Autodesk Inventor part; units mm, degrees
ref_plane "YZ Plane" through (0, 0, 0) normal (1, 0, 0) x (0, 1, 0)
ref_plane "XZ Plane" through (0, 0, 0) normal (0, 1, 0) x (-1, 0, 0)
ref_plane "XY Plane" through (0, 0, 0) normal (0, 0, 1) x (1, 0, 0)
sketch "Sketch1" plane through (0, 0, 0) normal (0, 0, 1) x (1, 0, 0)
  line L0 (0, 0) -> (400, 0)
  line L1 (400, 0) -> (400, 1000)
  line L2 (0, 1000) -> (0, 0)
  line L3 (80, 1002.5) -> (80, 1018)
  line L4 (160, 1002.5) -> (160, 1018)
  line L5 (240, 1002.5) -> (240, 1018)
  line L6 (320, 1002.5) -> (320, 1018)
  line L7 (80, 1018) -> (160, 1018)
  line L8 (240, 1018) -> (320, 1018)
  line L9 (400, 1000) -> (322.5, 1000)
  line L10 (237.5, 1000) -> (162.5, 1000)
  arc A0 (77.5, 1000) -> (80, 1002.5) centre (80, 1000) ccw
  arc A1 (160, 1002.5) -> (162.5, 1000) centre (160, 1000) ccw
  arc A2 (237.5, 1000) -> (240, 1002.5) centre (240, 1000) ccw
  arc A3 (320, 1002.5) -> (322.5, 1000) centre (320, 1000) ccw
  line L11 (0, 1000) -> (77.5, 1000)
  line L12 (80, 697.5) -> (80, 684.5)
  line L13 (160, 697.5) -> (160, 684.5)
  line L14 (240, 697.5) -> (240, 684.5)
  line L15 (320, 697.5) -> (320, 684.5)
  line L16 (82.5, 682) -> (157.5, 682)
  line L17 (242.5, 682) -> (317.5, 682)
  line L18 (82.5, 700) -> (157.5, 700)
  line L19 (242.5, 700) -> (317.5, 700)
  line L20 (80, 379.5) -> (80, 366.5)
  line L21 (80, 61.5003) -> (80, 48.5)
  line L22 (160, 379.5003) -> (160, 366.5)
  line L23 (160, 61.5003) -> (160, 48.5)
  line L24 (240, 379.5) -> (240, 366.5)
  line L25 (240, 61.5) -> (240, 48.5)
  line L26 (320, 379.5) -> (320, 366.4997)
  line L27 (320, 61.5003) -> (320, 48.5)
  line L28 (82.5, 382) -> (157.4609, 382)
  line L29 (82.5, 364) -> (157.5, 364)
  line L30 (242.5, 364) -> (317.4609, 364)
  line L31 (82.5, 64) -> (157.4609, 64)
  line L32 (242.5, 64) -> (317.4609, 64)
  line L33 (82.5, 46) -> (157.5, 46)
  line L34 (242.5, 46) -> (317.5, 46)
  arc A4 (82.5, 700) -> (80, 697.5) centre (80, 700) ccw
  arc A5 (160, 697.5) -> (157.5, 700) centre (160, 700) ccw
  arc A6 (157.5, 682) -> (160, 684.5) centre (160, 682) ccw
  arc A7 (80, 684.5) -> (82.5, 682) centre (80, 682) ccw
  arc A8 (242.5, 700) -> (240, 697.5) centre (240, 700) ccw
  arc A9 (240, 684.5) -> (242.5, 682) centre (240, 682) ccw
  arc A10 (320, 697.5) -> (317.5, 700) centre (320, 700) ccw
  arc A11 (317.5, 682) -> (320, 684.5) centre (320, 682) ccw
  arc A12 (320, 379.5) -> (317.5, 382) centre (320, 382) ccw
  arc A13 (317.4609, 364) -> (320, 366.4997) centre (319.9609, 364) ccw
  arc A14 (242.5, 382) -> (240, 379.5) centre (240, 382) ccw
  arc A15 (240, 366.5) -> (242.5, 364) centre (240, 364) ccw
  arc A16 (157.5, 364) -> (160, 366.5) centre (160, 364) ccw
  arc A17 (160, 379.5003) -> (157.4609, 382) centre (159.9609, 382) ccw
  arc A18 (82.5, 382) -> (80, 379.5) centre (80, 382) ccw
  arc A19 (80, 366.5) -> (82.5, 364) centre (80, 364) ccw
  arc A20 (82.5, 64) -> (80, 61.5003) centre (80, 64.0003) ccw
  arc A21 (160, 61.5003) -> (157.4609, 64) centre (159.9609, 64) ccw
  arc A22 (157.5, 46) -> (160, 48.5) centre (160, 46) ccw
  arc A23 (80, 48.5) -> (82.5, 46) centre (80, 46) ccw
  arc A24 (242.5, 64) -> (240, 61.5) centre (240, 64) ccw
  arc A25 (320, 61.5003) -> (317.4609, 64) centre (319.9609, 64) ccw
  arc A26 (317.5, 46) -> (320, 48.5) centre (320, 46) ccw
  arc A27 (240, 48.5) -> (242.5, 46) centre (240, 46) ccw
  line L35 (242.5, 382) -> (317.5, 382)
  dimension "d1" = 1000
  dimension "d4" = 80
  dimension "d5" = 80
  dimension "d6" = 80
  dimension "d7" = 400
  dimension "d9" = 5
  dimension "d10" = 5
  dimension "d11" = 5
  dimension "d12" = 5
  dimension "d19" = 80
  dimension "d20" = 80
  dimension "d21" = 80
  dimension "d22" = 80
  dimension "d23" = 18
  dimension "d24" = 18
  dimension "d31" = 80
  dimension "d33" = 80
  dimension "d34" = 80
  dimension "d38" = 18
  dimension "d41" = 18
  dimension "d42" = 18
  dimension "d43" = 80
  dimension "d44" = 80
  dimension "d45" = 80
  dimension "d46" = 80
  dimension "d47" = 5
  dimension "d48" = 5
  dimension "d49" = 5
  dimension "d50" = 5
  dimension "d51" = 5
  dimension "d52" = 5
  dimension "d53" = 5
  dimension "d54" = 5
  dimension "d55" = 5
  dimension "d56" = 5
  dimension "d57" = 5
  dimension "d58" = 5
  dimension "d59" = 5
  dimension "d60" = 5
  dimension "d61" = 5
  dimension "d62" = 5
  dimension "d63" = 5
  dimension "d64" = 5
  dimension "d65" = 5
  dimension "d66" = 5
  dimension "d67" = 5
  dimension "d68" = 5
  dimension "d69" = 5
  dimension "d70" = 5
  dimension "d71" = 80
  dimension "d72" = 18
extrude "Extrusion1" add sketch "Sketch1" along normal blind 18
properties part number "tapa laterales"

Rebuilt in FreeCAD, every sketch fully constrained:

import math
import FreeCAD as App
import Part
import Sketcher

doc = App.newDocument("Part")
body = doc.addObject("PartDesign::Body", "Body")

sketch1 = body.newObject("Sketcher::SketchObject", "Sketch")
sketch1.AttachmentSupport = (doc.getObject("XY_Plane"), [""])
sketch1.MapMode = "FlatFace"
sketch1.addGeometry([
    Part.LineSegment(App.Vector(0, 1000, 0), App.Vector(0, 0, 0)),
    Part.LineSegment(App.Vector(0, 0, 0), App.Vector(400, 0, 0)),
    Part.LineSegment(App.Vector(400, 0, 0), App.Vector(400, 1000, 0)),
    Part.LineSegment(App.Vector(400, 1000, 0), App.Vector(322.5, 1000, 0)),
    Part.ArcOfCircle(Part.Circle(App.Vector(320, 1000, 0), App.Vector(0, 0, 1), 2.5), math.radians(90), math.radians(360)),
    Part.LineSegment(App.Vector(320, 1002.5, 0), App.Vector(320, 1018, 0)),
    Part.LineSegment(App.Vector(320, 1018, 0), App.Vector(240, 1018, 0)),
    Part.LineSegment(App.Vector(240, 1018, 0), App.Vector(240, 1002.5, 0)),
    Part.ArcOfCircle(Part.Circle(App.Vector(240, 1000, 0), App.Vector(0, 0, 1), 2.5), math.radians(180), math.radians(450)),
    Part.LineSegment(App.Vector(237.5, 1000, 0), App.Vector(162.5, 1000, 0)),
    Part.ArcOfCircle(Part.Circle(App.Vector(160, 1000, 0), App.Vector(0, 0, 1), 2.5), math.radians(90), math.radians(360)),
    Part.LineSegment(App.Vector(160, 1002.5, 0), App.Vector(160, 1018, 0)),
    Part.LineSegment(App.Vector(160, 1018, 0), App.Vector(80, 1018, 0)),
    Part.LineSegment(App.Vector(80, 1018, 0), App.Vector(80, 1002.5, 0)),
    Part.ArcOfCircle(Part.Circle(App.Vector(80, 1000, 0), App.Vector(0, 0, 1), 2.5), math.radians(180), math.radians(450)),
    Part.LineSegment(App.Vector(77.5, 1000, 0), App.Vector(0, 1000, 0)),
    Part.LineSegment(App.Vector(80, 48.5, 0), App.Vector(80, 61.5, 0)),
    Part.ArcOfCircle(Part.Circle(App.Vector(80, 64, 0), App.Vector(0, 0, 1), 2.5), math.radians(0), math.radians(270)),
    Part.LineSegment(App.Vector(82.5, 64, 0), App.Vector(157.5, 64, 0)),
    Part.ArcOfCircle(Part.Circle(App.Vector(160, 64, 0), App.Vector(0, 0, 1), 2.5), math.radians(-89), math.radians(180)),
    Part.LineSegment(App.Vector(160, 61.5, 0), App.Vector(160, 48.5, 0)),
    Part.ArcOfCircle(Part.Circle(App.Vector(160, 46, 0), App.Vector(0, 0, 1), 2.5), math.radians(180), math.radians(450)),
    Part.LineSegment(App.Vector(157.5, 46, 0), App.Vector(82.5, 46, 0)),
    Part.ArcOfCircle(Part.Circle(App.Vector(80, 46, 0), App.Vector(0, 0, 1), 2.5), math.radians(90), math.radians(360)),
    Part.LineSegment(App.Vector(80, 366.5, 0), App.Vector(80, 379.5, 0)),
    Part.ArcOfCircle(Part.Circle(App.Vector(80, 382, 0), App.Vector(0, 0, 1), 2.5), math.radians(0), math.radians(270)),
    Part.LineSegment(App.Vector(82.5, 382, 0), App.Vector(157.5, 382, 0)),
    Part.ArcOfCircle(Part.Circle(App.Vector(160, 382, 0), App.Vector(0, 0, 1), 2.5), math.radians(-89), math.radians(180)),
    Part.LineSegment(App.Vector(160, 379.5, 0), App.Vector(160, 366.5, 0)),
    Part.ArcOfCircle(Part.Circle(App.Vector(160, 364, 0), App.Vector(0, 0, 1), 2.5), math.radians(180), math.radians(450)),
    Part.LineSegment(App.Vector(157.5, 364, 0), App.Vector(82.5, 364, 0)),
    Part.ArcOfCircle(Part.Circle(App.Vector(80, 364, 0), App.Vector(0, 0, 1), 2.5), math.radians(90), math.radians(360)),
    Part.LineSegment(App.Vector(240, 48.5, 0), App.Vector(240, 61.5, 0)),
    Part.ArcOfCircle(Part.Circle(App.Vector(240, 64, 0), App.Vector(0, 0, 1), 2.5), math.radians(0), math.radians(270)),
    Part.LineSegment(App.Vector(242.5, 64, 0), App.Vector(317.5, 64, 0)),
    Part.ArcOfCircle(Part.Circle(App.Vector(320, 64, 0), App.Vector(0, 0, 1), 2.5), math.radians(-89), math.radians(180)),
    Part.LineSegment(App.Vector(320, 61.5, 0), App.Vector(320, 48.5, 0)),
    Part.ArcOfCircle(Part.Circle(App.Vector(320, 46, 0), App.Vector(0, 0, 1), 2.5), math.radians(180), math.radians(450)),
    Part.LineSegment(App.Vector(317.5, 46, 0), App.Vector(242.5, 46, 0)),
    Part.ArcOfCircle(Part.Circle(App.Vector(240, 46, 0), App.Vector(0, 0, 1), 2.5), math.radians(90), math.radians(360)),
    Part.LineSegment(App.Vector(240, 366.5, 0), App.Vector(240, 379.5, 0)),
    Part.ArcOfCircle(Part.Circle(App.Vector(240, 382, 0), App.Vector(0, 0, 1), 2.5), math.radians(0), math.radians(270)),
    Part.LineSegment(App.Vector(242.5, 382, 0), App.Vector(317.5, 382, 0)),
    Part.ArcOfCircle(Part.Circle(App.Vector(320, 382, 0), App.Vector(0, 0, 1), 2.5), math.radians(-90), math.radians(180)),
    Part.LineSegment(App.Vector(320, 379.5, 0), App.Vector(320, 366.5, 0)),
    Part.ArcOfCircle(Part.Circle(App.Vector(320, 364, 0), App.Vector(0, 0, 1), 2.5), math.radians(180), math.radians(449)),
    Part.LineSegment(App.Vector(317.5, 364, 0), App.Vector(242.5, 364, 0)),
    Part.ArcOfCircle(Part.Circle(App.Vector(240, 364, 0), App.Vector(0, 0, 1), 2.5), math.radians(90), math.radians(360)),
    Part.LineSegment(App.Vector(80, 684.5, 0), App.Vector(80, 697.5, 0)),
    Part.ArcOfCircle(Part.Circle(App.Vector(80, 700, 0), App.Vector(0, 0, 1), 2.5), math.radians(0), math.radians(270)),
    Part.LineSegment(App.Vector(82.5, 700, 0), App.Vector(157.5, 700, 0)),
    Part.ArcOfCircle(Part.Circle(App.Vector(160, 700, 0), App.Vector(0, 0, 1), 2.5), math.radians(-90), math.radians(180)),
    Part.LineSegment(App.Vector(160, 697.5, 0), App.Vector(160, 684.5, 0)),
    Part.ArcOfCircle(Part.Circle(App.Vector(160, 682, 0), App.Vector(0, 0, 1), 2.5), math.radians(180), math.radians(450)),
    Part.LineSegment(App.Vector(157.5, 682, 0), App.Vector(82.5, 682, 0)),
    Part.ArcOfCircle(Part.Circle(App.Vector(80, 682, 0), App.Vector(0, 0, 1), 2.5), math.radians(90), math.radians(360)),
    Part.LineSegment(App.Vector(240, 684.5, 0), App.Vector(240, 697.5, 0)),
    Part.ArcOfCircle(Part.Circle(App.Vector(240, 700, 0), App.Vector(0, 0, 1), 2.5), math.radians(0), math.radians(270)),
    Part.LineSegment(App.Vector(242.5, 700, 0), App.Vector(317.5, 700, 0)),
    Part.ArcOfCircle(Part.Circle(App.Vector(320, 700, 0), App.Vector(0, 0, 1), 2.5), math.radians(-90), math.radians(180)),
    Part.LineSegment(App.Vector(320, 697.5, 0), App.Vector(320, 684.5, 0)),
    Part.ArcOfCircle(Part.Circle(App.Vector(320, 682, 0), App.Vector(0, 0, 1), 2.5), math.radians(180), math.radians(450)),
    Part.LineSegment(App.Vector(317.5, 682, 0), App.Vector(242.5, 682, 0)),
    Part.ArcOfCircle(Part.Circle(App.Vector(240, 682, 0), App.Vector(0, 0, 1), 2.5), math.radians(90), math.radians(360)),
], False)
sketch1.addConstraint([
    Sketcher.Constraint("Coincident", 0, 2, 1, 1),
    Sketcher.Constraint("Coincident", 1, 2, 2, 1),
    Sketcher.Constraint("Coincident", 2, 2, 3, 1),
    Sketcher.Constraint("Coincident", 3, 2, 4, 2),
    Sketcher.Constraint("Coincident", 4, 1, 5, 1),
    Sketcher.Constraint("Coincident", 5, 2, 6, 1),
    Sketcher.Constraint("Coincident", 6, 2, 7, 1),
    Sketcher.Constraint("Coincident", 7, 2, 8, 2),
    Sketcher.Constraint("Coincident", 8, 1, 9, 1),
    Sketcher.Constraint("Coincident", 9, 2, 10, 2),
    Sketcher.Constraint("Coincident", 10, 1, 11, 1),
    Sketcher.Constraint("Coincident", 11, 2, 12, 1),
    Sketcher.Constraint("Coincident", 12, 2, 13, 1),
    Sketcher.Constraint("Coincident", 13, 2, 14, 2),
    Sketcher.Constraint("Coincident", 14, 1, 15, 1),
    Sketcher.Constraint("Coincident", 15, 2, 0, 1),
    Sketcher.Constraint("Coincident", 16, 2, 17, 2),
    Sketcher.Constraint("Coincident", 17, 1, 18, 1),
    Sketcher.Constraint("Coincident", 18, 2, 19, 2),
    Sketcher.Constraint("Coincident", 19, 1, 20, 1),
    Sketcher.Constraint("Coincident", 20, 2, 21, 2),
    Sketcher.Constraint("Coincident", 21, 1, 22, 1),
    Sketcher.Constraint("Coincident", 22, 2, 23, 2),
    Sketcher.Constraint("Coincident", 23, 1, 16, 1),
    Sketcher.Constraint("Coincident", 24, 2, 25, 2),
    Sketcher.Constraint("Coincident", 25, 1, 26, 1),
    Sketcher.Constraint("Coincident", 26, 2, 27, 2),
    Sketcher.Constraint("Coincident", 27, 1, 28, 1),
    Sketcher.Constraint("Coincident", 28, 2, 29, 2),
    Sketcher.Constraint("Coincident", 29, 1, 30, 1),
    Sketcher.Constraint("Coincident", 30, 2, 31, 2),
    Sketcher.Constraint("Coincident", 31, 1, 24, 1),
    Sketcher.Constraint("Coincident", 32, 2, 33, 2),
    Sketcher.Constraint("Coincident", 33, 1, 34, 1),
    Sketcher.Constraint("Coincident", 34, 2, 35, 2),
    Sketcher.Constraint("Coincident", 35, 1, 36, 1),
    Sketcher.Constraint("Coincident", 36, 2, 37, 2),
    Sketcher.Constraint("Coincident", 37, 1, 38, 1),
    Sketcher.Constraint("Coincident", 38, 2, 39, 2),
    Sketcher.Constraint("Coincident", 39, 1, 32, 1),
    Sketcher.Constraint("Coincident", 40, 2, 41, 2),
    Sketcher.Constraint("Coincident", 41, 1, 42, 1),
    Sketcher.Constraint("Coincident", 42, 2, 43, 2),
    Sketcher.Constraint("Coincident", 43, 1, 44, 1),
    Sketcher.Constraint("Coincident", 44, 2, 45, 2),
    Sketcher.Constraint("Coincident", 45, 1, 46, 1),
    Sketcher.Constraint("Coincident", 46, 2, 47, 2),
    Sketcher.Constraint("Coincident", 47, 1, 40, 1),
    Sketcher.Constraint("Coincident", 48, 2, 49, 2),
    Sketcher.Constraint("Coincident", 49, 1, 50, 1),
    Sketcher.Constraint("Coincident", 50, 2, 51, 2),
    Sketcher.Constraint("Coincident", 51, 1, 52, 1),
    Sketcher.Constraint("Coincident", 52, 2, 53, 2),
    Sketcher.Constraint("Coincident", 53, 1, 54, 1),
    Sketcher.Constraint("Coincident", 54, 2, 55, 2),
    Sketcher.Constraint("Coincident", 55, 1, 48, 1),
    Sketcher.Constraint("Coincident", 56, 2, 57, 2),
    Sketcher.Constraint("Coincident", 57, 1, 58, 1),
    Sketcher.Constraint("Coincident", 58, 2, 59, 2),
    Sketcher.Constraint("Coincident", 59, 1, 60, 1),
    Sketcher.Constraint("Coincident", 60, 2, 61, 2),
    Sketcher.Constraint("Coincident", 61, 1, 62, 1),
    Sketcher.Constraint("Coincident", 62, 2, 63, 2),
    Sketcher.Constraint("Coincident", 63, 1, 56, 1),
    Sketcher.Constraint("Vertical", 0),
    Sketcher.Constraint("Horizontal", 1),
    Sketcher.Constraint("Vertical", 2),
    Sketcher.Constraint("Horizontal", 3),
    Sketcher.Constraint("Vertical", 5),
    Sketcher.Constraint("Horizontal", 6),
    Sketcher.Constraint("Vertical", 7),
    Sketcher.Constraint("Horizontal", 9),
    Sketcher.Constraint("Vertical", 11),
    Sketcher.Constraint("Horizontal", 12),
    Sketcher.Constraint("Vertical", 13),
    Sketcher.Constraint("Horizontal", 15),
    Sketcher.Constraint("Vertical", 16),
    Sketcher.Constraint("Horizontal", 18),
    Sketcher.Constraint("Vertical", 20),
    Sketcher.Constraint("Horizontal", 22),
    Sketcher.Constraint("Vertical", 24),
    Sketcher.Constraint("Horizontal", 26),
    Sketcher.Constraint("Vertical", 28),
    Sketcher.Constraint("Horizontal", 30),
    Sketcher.Constraint("Vertical", 32),
    Sketcher.Constraint("Horizontal", 34),
    Sketcher.Constraint("Vertical", 36),
    Sketcher.Constraint("Horizontal", 38),
    Sketcher.Constraint("Vertical", 40),
    Sketcher.Constraint("Horizontal", 42),
    Sketcher.Constraint("Vertical", 44),
    Sketcher.Constraint("Horizontal", 46),
    Sketcher.Constraint("Vertical", 48),
    Sketcher.Constraint("Horizontal", 50),
    Sketcher.Constraint("Vertical", 52),
    Sketcher.Constraint("Horizontal", 54),
    Sketcher.Constraint("Vertical", 56),
    Sketcher.Constraint("Horizontal", 58),
    Sketcher.Constraint("Vertical", 60),
    Sketcher.Constraint("Horizontal", 62),
    Sketcher.Constraint("Coincident", 0, 2, -1, 1),
    Sketcher.Constraint("Equal", 4, 8),
    Sketcher.Constraint("Equal", 8, 10),
    Sketcher.Constraint("Equal", 10, 14),
    Sketcher.Constraint("Equal", 14, 17),
    Sketcher.Constraint("Equal", 17, 19),
    Sketcher.Constraint("Equal", 19, 21),
    Sketcher.Constraint("Equal", 21, 23),
    Sketcher.Constraint("Equal", 23, 25),
    Sketcher.Constraint("Equal", 25, 27),
    Sketcher.Constraint("Equal", 27, 29),
    Sketcher.Constraint("Equal", 29, 31),
    Sketcher.Constraint("Equal", 31, 33),
    Sketcher.Constraint("Equal", 33, 35),
    Sketcher.Constraint("Equal", 35, 37),
    Sketcher.Constraint("Equal", 37, 39),
    Sketcher.Constraint("Equal", 39, 41),
    Sketcher.Constraint("Equal", 41, 43),
    Sketcher.Constraint("Equal", 43, 45),
    Sketcher.Constraint("Equal", 45, 47),
    Sketcher.Constraint("Equal", 47, 49),
    Sketcher.Constraint("Equal", 49, 51),
    Sketcher.Constraint("Equal", 51, 53),
    Sketcher.Constraint("Equal", 53, 55),
    Sketcher.Constraint("Equal", 55, 57),
    Sketcher.Constraint("Equal", 57, 59),
    Sketcher.Constraint("Equal", 59, 61),
    Sketcher.Constraint("Equal", 61, 63),
    Sketcher.Constraint("Horizontal", 4, 3, 8, 3),
    Sketcher.Constraint("Horizontal", 8, 3, 10, 3),
    Sketcher.Constraint("Horizontal", 10, 3, 14, 3),
    Sketcher.Constraint("Horizontal", 21, 3, 23, 3),
    Sketcher.Constraint("Horizontal", 25, 3, 27, 3),
    Sketcher.Constraint("Horizontal", 29, 3, 31, 3),
    Sketcher.Constraint("Horizontal", 19, 3, 33, 3),
    Sketcher.Constraint("Horizontal", 33, 3, 35, 3),
    Sketcher.Constraint("Horizontal", 23, 3, 37, 3),
    Sketcher.Constraint("Horizontal", 37, 3, 39, 3),
    Sketcher.Constraint("Horizontal", 27, 3, 41, 3),
    Sketcher.Constraint("Horizontal", 41, 3, 43, 3),
    Sketcher.Constraint("Horizontal", 31, 3, 45, 3),
    Sketcher.Constraint("Horizontal", 45, 3, 47, 3),
    Sketcher.Constraint("Horizontal", 49, 3, 51, 3),
    Sketcher.Constraint("Horizontal", 53, 3, 55, 3),
    Sketcher.Constraint("Horizontal", 51, 3, 57, 3),
    Sketcher.Constraint("Horizontal", 57, 3, 59, 3),
    Sketcher.Constraint("Horizontal", 55, 3, 61, 3),
    Sketcher.Constraint("Horizontal", 61, 3, 63, 3),
    Sketcher.Constraint("Horizontal", 14, 3, 2, 2),
    Sketcher.Constraint("Horizontal", 3, 2, 8, 1),
    Sketcher.Constraint("Horizontal", 6, 2, 11, 2),
    Sketcher.Constraint("Horizontal", 9, 2, 14, 1),
    Sketcher.Constraint("Horizontal", 35, 3, 17, 1),
    Sketcher.Constraint("Horizontal", 16, 2, 19, 1),
    Sketcher.Constraint("Horizontal", 39, 3, 21, 1),
    Sketcher.Constraint("Horizontal", 43, 3, 25, 1),
    Sketcher.Constraint("Horizontal", 47, 3, 29, 1),
    Sketcher.Constraint("Horizontal", 18, 2, 33, 1),
    Sketcher.Constraint("Horizontal", 19, 1, 35, 1),
    Sketcher.Constraint("Horizontal", 22, 2, 37, 1),
    Sketcher.Constraint("Horizontal", 26, 2, 41, 1),
    Sketcher.Constraint("Horizontal", 30, 2, 45, 1),
    Sketcher.Constraint("Horizontal", 59, 3, 49, 1),
    Sketcher.Constraint("Horizontal", 63, 3, 53, 1),
    Sketcher.Constraint("Horizontal", 50, 2, 57, 1),
    Sketcher.Constraint("Horizontal", 54, 2, 61, 1),
    Sketcher.Constraint("Vertical", 14, 3, 17, 3),
    Sketcher.Constraint("Vertical", 10, 3, 21, 3),
    Sketcher.Constraint("Vertical", 17, 3, 23, 3),
    Sketcher.Constraint("Vertical", 23, 3, 25, 3),
    Sketcher.Constraint("Vertical", 19, 3, 27, 3),
    Sketcher.Constraint("Vertical", 21, 3, 29, 3),
    Sketcher.Constraint("Vertical", 25, 3, 31, 3),
    Sketcher.Constraint("Vertical", 8, 3, 33, 3),
    Sketcher.Constraint("Vertical", 4, 3, 37, 3),
    Sketcher.Constraint("Vertical", 33, 3, 39, 3),
    Sketcher.Constraint("Vertical", 39, 3, 41, 3),
    Sketcher.Constraint("Vertical", 37, 3, 43, 3),
    Sketcher.Constraint("Vertical", 35, 3, 45, 3),
    Sketcher.Constraint("Vertical", 41, 3, 47, 3),
    Sketcher.Constraint("Vertical", 31, 3, 49, 3),
    Sketcher.Constraint("Vertical", 29, 3, 51, 3),
    Sketcher.Constraint("Vertical", 51, 3, 53, 3),
    Sketcher.Constraint("Vertical", 49, 3, 55, 3),
    Sketcher.Constraint("Vertical", 47, 3, 57, 3),
    Sketcher.Constraint("Vertical", 43, 3, 59, 3),
    Sketcher.Constraint("Vertical", 59, 3, 61, 3),
    Sketcher.Constraint("Vertical", 57, 3, 63, 3),
    Sketcher.Constraint("Vertical", 61, 3, 4, 1),
    Sketcher.Constraint("Vertical", 63, 3, 6, 2),
    Sketcher.Constraint("Vertical", 53, 3, 10, 1),
    Sketcher.Constraint("Vertical", 55, 3, 12, 2),
    Sketcher.Constraint("Vertical", 13, 2, 16, 2),
    Sketcher.Constraint("Vertical", 11, 2, 19, 1),
    Sketcher.Constraint("Vertical", 23, 1, 24, 2),
    Sketcher.Constraint("Vertical", 20, 2, 27, 1),
    Sketcher.Constraint("Vertical", 7, 2, 32, 2),
    Sketcher.Constraint("Vertical", 5, 2, 35, 1),
    Sketcher.Constraint("Vertical", 39, 1, 40, 2),
    Sketcher.Constraint("Vertical", 36, 2, 43, 1),
    Sketcher.Constraint("Vertical", 31, 1, 48, 2),
    Sketcher.Constraint("Vertical", 28, 2, 51, 1),
    Sketcher.Constraint("Vertical", 47, 1, 56, 2),
    Sketcher.Constraint("Vertical", 44, 2, 59, 1),
    Sketcher.Constraint("Equal", 6, 12),
    Sketcher.Constraint("Equal", 3, 15),
    Sketcher.Constraint("Equal", 9, 22),
    Sketcher.Constraint("Equal", 20, 28),
    Sketcher.Constraint("Equal", 40, 48),
    Sketcher.Constraint("Radius", 4, 2.5),
    Sketcher.Constraint("DistanceX", 1, 1, 1, 2, 400.0),
    Sketcher.Constraint("DistanceX", 6, 2, 6, 1, 80.0),
    Sketcher.Constraint("DistanceY", 0, 2, 0, 1, 1000.0),
    Sketcher.Constraint("DistanceY", 24, 1, 24, 2, 13.0),
    Sketcher.Constraint("DistanceY", 5, 1, 5, 2, 15.5),
    Sketcher.Constraint("DistanceY", -1, 1, 19, 3, 64.0),
    Sketcher.Constraint("DistanceY", -1, 1, 25, 3, 382.0),
    Sketcher.Constraint("DistanceY", -1, 1, 49, 3, 700.0),
    Sketcher.Constraint("DistanceX", 18, 1, 18, 2, 74.961),
])
pad1 = body.newObject("PartDesign::Pad", "Pad")
pad1.Profile = sketch1
pad1.Length = 18

doc.recompute()
